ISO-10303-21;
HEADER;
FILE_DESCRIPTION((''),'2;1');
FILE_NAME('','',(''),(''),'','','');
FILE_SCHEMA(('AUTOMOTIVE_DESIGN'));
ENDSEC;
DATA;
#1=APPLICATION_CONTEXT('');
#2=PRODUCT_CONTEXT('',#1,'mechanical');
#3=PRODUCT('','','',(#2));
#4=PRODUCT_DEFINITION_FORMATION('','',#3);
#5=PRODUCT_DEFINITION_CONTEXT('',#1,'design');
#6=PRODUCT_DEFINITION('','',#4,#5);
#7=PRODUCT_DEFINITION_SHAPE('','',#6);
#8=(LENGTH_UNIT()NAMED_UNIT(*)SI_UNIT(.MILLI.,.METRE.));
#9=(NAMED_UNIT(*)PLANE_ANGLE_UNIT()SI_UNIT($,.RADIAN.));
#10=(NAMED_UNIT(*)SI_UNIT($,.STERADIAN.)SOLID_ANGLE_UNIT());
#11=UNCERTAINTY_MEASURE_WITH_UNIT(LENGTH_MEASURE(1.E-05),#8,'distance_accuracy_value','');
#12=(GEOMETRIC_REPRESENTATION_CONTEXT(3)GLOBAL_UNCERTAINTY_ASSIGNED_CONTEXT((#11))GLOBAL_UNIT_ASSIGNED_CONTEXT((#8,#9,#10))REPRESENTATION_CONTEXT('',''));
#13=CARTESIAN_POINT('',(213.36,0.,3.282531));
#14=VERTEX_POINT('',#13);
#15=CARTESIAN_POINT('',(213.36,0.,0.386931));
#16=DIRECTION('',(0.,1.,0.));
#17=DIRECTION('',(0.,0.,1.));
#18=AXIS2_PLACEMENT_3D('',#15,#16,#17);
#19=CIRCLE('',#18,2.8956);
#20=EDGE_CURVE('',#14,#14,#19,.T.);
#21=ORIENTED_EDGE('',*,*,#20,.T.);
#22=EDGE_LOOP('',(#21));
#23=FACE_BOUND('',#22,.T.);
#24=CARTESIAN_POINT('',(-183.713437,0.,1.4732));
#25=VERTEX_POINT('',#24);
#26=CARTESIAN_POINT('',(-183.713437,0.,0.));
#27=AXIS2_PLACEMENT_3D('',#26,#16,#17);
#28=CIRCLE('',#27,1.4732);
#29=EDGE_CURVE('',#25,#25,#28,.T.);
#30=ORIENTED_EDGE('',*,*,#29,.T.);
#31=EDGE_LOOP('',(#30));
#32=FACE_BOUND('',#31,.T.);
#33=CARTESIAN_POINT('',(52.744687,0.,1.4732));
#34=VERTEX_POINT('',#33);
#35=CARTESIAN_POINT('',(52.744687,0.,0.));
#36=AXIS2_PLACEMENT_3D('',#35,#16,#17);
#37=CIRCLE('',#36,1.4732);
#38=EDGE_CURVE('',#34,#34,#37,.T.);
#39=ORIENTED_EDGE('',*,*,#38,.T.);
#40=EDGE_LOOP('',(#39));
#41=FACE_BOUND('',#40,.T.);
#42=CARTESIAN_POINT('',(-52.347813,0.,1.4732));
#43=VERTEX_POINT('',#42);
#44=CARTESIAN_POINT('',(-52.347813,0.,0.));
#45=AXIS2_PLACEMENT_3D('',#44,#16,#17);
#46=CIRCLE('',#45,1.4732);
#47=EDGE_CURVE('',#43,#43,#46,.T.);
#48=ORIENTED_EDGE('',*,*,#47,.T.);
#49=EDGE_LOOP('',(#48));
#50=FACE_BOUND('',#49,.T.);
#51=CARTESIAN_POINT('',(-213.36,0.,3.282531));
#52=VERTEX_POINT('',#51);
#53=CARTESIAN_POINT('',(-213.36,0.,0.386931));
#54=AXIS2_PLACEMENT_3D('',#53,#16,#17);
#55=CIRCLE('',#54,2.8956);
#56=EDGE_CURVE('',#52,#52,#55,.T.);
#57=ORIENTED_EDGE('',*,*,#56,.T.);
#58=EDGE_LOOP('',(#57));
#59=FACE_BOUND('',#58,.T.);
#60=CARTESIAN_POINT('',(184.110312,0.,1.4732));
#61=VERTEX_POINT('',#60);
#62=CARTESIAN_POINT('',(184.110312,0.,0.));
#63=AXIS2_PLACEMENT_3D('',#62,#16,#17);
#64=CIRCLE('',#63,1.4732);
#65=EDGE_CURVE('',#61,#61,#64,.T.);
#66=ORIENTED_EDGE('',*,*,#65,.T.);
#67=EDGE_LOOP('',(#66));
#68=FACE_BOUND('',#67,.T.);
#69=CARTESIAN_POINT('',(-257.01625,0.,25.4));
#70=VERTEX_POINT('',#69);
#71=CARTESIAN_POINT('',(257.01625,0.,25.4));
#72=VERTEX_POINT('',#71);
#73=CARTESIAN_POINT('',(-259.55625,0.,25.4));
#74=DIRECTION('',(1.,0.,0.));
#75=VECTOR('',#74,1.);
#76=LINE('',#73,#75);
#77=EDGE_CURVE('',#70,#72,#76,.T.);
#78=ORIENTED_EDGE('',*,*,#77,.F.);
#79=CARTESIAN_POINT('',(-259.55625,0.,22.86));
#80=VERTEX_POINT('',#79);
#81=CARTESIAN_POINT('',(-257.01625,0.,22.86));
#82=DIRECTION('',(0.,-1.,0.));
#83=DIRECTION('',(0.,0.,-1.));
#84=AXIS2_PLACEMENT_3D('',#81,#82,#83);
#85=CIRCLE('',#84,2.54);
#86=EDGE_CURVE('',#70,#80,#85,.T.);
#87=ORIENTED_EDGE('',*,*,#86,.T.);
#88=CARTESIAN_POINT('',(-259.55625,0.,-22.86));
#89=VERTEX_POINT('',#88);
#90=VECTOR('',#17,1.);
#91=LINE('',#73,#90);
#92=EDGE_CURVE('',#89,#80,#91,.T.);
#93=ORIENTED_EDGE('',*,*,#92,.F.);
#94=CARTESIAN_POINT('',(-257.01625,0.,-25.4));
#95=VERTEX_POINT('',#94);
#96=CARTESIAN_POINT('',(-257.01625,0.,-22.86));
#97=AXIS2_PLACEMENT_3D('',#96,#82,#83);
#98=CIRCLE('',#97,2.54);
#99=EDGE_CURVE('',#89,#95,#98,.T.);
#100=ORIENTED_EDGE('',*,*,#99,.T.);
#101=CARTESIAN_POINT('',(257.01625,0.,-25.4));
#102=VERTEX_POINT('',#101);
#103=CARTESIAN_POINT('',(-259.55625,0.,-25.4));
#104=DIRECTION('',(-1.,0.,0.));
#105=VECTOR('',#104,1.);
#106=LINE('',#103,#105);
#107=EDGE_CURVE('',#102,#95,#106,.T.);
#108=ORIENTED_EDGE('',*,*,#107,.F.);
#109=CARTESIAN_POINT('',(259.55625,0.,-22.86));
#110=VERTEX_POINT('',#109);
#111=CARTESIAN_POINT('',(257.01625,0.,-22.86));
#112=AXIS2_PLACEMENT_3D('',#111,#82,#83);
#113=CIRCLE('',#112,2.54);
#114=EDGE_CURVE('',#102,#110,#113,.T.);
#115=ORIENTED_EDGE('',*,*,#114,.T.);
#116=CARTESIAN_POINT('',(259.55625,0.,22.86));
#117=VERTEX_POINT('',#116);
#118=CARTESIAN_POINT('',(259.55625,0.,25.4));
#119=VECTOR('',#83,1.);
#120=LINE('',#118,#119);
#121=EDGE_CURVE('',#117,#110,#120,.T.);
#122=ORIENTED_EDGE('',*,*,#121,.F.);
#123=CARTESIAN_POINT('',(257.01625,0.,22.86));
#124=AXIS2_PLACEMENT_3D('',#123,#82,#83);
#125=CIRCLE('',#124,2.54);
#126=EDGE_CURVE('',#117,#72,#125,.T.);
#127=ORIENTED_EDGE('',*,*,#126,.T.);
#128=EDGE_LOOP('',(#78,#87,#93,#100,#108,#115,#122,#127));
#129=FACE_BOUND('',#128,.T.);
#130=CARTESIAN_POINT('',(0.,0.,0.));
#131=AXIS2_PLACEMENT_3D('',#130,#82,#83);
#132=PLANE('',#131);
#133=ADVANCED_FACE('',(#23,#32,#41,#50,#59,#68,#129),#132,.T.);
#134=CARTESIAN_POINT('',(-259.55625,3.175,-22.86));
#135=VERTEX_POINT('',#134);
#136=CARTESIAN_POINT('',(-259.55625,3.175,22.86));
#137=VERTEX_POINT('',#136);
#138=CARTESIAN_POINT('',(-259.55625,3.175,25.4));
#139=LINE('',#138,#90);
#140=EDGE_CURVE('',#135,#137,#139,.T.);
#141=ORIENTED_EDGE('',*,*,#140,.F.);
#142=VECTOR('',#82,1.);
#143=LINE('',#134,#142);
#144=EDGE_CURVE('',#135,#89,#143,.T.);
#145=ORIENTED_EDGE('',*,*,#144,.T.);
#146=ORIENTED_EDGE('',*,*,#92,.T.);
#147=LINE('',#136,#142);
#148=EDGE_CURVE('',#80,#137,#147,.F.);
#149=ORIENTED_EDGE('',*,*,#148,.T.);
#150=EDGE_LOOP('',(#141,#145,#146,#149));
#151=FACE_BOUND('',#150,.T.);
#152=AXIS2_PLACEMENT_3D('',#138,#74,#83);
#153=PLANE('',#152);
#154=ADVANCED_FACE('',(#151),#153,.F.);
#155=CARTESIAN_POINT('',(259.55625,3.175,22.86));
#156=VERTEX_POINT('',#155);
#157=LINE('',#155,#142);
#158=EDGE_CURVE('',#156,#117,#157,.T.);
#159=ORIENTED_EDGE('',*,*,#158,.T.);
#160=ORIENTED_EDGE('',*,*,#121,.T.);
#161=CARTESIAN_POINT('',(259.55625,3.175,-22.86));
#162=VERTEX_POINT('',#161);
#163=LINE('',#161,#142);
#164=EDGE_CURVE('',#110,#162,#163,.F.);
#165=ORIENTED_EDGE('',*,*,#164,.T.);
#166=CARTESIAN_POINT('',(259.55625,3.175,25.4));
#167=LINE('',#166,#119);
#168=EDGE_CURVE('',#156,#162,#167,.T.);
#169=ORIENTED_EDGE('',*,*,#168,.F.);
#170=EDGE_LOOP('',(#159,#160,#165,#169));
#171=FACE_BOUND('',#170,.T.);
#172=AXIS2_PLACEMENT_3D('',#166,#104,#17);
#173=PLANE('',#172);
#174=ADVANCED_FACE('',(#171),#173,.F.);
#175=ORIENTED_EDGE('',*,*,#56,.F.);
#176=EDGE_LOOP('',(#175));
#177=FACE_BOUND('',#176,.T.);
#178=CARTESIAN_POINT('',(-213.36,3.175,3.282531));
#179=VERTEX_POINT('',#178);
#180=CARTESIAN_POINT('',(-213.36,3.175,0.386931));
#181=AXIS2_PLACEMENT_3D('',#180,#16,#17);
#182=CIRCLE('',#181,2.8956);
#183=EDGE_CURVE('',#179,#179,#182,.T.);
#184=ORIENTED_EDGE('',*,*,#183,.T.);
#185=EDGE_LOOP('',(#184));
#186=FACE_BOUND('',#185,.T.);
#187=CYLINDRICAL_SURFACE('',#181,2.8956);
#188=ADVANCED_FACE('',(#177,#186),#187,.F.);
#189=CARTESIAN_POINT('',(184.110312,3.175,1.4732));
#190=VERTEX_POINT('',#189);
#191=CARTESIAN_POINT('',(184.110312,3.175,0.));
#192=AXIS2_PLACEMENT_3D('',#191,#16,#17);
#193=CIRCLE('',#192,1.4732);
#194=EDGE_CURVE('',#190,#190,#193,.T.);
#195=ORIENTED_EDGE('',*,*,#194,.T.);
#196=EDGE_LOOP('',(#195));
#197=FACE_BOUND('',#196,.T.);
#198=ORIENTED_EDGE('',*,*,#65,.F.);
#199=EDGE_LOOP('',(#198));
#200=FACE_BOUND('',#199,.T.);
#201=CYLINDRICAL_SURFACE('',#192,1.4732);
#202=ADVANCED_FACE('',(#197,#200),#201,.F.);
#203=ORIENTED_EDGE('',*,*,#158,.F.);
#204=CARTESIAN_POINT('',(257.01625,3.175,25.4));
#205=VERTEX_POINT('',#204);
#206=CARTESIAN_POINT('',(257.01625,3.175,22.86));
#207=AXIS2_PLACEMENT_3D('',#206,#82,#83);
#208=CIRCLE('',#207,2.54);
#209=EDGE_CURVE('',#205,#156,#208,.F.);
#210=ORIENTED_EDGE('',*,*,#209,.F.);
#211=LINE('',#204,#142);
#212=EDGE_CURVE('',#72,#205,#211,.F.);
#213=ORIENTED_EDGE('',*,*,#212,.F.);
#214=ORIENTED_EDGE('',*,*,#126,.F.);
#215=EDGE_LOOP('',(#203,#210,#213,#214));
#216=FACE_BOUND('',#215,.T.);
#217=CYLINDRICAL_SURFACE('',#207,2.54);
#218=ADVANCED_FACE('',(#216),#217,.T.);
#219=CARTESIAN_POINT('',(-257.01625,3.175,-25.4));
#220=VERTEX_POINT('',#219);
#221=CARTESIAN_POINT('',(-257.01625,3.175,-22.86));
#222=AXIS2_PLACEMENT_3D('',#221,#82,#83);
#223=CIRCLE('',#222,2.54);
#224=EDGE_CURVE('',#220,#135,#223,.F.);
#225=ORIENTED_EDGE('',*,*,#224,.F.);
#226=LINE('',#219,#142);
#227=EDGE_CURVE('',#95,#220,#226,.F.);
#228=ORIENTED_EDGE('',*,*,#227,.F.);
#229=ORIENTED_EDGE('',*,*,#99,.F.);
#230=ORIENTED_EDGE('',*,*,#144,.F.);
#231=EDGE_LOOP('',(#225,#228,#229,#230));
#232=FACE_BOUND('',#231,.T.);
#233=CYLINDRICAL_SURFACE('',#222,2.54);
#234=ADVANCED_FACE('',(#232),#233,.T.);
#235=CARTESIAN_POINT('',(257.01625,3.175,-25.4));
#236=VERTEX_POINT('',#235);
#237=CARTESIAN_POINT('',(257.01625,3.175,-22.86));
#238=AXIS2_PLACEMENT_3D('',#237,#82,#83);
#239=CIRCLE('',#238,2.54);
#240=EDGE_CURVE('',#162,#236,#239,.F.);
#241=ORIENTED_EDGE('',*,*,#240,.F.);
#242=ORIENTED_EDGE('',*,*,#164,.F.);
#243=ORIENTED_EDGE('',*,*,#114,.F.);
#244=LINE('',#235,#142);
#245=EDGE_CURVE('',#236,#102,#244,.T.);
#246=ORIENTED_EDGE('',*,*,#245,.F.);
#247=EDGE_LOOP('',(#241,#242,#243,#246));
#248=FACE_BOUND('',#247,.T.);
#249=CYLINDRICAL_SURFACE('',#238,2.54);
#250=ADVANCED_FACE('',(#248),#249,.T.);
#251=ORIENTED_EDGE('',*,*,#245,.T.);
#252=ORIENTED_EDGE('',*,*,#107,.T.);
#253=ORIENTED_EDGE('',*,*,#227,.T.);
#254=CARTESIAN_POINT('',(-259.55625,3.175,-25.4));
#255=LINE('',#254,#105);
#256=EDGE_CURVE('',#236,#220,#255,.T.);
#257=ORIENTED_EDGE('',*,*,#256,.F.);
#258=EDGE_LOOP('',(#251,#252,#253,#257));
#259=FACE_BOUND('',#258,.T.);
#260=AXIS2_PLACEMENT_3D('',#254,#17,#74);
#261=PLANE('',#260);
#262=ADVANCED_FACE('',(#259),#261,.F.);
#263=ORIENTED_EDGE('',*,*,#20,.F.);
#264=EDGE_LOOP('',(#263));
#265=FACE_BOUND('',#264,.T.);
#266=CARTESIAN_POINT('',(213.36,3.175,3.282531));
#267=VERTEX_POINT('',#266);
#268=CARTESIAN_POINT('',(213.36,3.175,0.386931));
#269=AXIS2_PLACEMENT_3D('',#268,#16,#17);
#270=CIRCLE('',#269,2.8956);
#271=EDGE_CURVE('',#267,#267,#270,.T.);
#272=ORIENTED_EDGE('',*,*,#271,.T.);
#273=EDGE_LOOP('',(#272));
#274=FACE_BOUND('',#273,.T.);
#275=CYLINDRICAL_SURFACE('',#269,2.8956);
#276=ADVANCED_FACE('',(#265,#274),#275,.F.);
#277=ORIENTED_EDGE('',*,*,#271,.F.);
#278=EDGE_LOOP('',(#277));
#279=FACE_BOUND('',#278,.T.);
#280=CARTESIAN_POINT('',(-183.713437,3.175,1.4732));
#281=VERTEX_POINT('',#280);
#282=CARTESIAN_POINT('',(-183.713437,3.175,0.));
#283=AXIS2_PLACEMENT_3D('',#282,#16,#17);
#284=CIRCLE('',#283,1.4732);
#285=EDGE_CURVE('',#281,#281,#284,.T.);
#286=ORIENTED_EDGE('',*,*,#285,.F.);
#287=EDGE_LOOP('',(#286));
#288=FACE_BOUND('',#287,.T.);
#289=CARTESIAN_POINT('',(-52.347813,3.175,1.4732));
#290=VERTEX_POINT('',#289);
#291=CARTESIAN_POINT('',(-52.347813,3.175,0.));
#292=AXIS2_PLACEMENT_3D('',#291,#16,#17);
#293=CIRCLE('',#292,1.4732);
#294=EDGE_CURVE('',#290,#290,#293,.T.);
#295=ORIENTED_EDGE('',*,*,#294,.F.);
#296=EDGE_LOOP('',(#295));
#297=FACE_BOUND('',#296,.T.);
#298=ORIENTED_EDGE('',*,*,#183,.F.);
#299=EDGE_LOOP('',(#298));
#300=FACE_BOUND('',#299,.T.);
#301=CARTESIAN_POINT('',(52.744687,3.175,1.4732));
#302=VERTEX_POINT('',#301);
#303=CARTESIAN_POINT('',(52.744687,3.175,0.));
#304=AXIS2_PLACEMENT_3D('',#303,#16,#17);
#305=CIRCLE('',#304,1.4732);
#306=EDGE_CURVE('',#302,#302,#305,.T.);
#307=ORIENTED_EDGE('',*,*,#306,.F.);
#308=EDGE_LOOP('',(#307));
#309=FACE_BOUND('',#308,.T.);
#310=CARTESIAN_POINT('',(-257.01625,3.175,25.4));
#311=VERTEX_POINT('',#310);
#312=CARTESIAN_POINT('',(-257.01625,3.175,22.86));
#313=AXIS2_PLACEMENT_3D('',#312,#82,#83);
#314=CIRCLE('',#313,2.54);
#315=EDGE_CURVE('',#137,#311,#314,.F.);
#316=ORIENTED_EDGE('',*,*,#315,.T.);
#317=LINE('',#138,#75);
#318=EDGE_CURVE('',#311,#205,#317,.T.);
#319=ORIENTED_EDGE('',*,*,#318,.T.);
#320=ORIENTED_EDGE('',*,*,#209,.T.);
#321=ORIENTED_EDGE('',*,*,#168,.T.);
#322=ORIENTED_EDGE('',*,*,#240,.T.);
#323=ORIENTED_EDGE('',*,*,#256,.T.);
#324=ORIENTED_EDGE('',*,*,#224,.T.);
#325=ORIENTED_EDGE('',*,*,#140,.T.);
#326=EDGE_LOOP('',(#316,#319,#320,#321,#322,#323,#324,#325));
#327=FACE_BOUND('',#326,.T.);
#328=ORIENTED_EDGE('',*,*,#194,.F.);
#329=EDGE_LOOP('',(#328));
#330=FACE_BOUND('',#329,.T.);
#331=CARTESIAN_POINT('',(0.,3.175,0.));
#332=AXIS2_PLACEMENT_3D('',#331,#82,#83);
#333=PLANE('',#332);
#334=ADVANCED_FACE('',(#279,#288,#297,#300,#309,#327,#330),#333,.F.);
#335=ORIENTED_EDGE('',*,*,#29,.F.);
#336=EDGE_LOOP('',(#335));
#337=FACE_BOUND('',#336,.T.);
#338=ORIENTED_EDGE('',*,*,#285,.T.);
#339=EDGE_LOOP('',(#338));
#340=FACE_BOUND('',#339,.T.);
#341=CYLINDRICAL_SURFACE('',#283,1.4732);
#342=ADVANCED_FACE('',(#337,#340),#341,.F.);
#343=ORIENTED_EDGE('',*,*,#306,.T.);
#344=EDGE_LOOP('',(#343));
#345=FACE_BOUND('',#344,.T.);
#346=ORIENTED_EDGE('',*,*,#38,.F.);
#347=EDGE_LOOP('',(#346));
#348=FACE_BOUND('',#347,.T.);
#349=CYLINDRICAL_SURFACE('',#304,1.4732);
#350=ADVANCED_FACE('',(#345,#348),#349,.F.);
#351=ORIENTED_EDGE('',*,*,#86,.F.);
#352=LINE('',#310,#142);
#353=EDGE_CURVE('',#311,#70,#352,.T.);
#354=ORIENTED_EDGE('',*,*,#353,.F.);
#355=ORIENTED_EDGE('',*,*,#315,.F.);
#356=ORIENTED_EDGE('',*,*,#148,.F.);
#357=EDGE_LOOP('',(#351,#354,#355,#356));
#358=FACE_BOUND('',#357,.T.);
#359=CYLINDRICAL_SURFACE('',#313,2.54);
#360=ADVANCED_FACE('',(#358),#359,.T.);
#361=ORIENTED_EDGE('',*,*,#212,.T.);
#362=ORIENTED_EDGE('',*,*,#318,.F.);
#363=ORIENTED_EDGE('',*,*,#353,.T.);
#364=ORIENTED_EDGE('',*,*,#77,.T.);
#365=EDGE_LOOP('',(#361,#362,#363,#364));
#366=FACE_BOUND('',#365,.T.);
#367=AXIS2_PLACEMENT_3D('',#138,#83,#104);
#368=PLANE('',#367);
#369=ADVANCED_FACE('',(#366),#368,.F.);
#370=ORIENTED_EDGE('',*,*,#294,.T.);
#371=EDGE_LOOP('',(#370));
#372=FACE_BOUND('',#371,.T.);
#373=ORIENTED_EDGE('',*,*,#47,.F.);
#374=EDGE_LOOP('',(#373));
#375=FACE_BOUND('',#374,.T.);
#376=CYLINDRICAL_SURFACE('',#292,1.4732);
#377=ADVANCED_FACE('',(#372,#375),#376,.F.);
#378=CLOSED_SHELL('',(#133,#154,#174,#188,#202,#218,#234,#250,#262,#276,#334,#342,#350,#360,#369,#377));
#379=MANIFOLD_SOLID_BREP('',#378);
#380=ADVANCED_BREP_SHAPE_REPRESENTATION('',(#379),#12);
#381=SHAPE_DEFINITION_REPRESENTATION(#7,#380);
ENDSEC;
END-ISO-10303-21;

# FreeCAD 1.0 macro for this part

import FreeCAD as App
import Part
import Sketcher
from FreeCAD import Vector
Q = App.Units.Quantity


def edges_at(feature, points):
    """Names of the edges that pass closest to the given points."""
    edges = feature.Shape.Edges
    near = lambda p: min(range(len(edges)), key=lambda i: edges[i].distToShape(Part.Vertex(*p))[0])
    return sorted({f"Edge{near(p) + 1}" for p in points})

doc = App.newDocument("Part")
params = doc.addObject("Spreadsheet::Sheet", "Params")
for row, (alias, value) in enumerate([
    ("sketch1_height", "2 in"),
    ("sketch1_width", "20.4375 in"),
    ("pad1_length", "0.125 in"),
    ("fillet_radius", "0.1 in"),
    ("sketch2_diameter", "0.116 in"),
    ("hole_diameter", "0.116 in"),
    ("sketch3_diameter", "0.228 in"),
    ("hole2_diameter", "0.228 in"),
], start=1):
    params.set(f"A{row}", alias)
    params.set(f"B{row}", "=" + value)
    params.setAlias(f"B{row}", alias)

body = doc.addObject("PartDesign::Body", "Body")

# Sketch on XZ plane
sketch1 = doc.addObject("Sketcher::SketchObject", "Sketch")
body.addObject(sketch1)
sketch1.AttachmentSupport = (doc.XZ_Plane, [""])
sketch1.MapMode = "FlatFace"
sketch1.addGeometry([
    Part.LineSegment(Vector(-260, -25, 0), Vector(-260, 25, 0)),
    Part.LineSegment(Vector(-260, 25, 0), Vector(260, 25, 0)),
    Part.LineSegment(Vector(260, 25, 0), Vector(260, -25, 0)),
    Part.LineSegment(Vector(260, -25, 0), Vector(-260, -25, 0)),
], False)
sketch1.addConstraint([
    Sketcher.Constraint("Coincident", 0, 2, 1, 1),
    Sketcher.Constraint("Coincident", 1, 2, 2, 1),
    Sketcher.Constraint("Coincident", 2, 2, 3, 1),
    Sketcher.Constraint("Coincident", 3, 2, 0, 1),
    Sketcher.Constraint("Vertical", 0),
    Sketcher.Constraint("Horizontal", 1),
    Sketcher.Constraint("Vertical", 2),
    Sketcher.Constraint("Horizontal", 3),
    Sketcher.Constraint("Symmetric", 0, 2, 2, 2, -1, 1),
    Sketcher.Constraint("DistanceY", 0, 1, 0, 2, Q("2 in")),
    Sketcher.Constraint("DistanceX", 1, 1, 1, 2, Q("20.4375 in")),
])
sketch1.setExpression("Constraints[9]", "Params.sketch1_height")
sketch1.setExpression("Constraints[10]", "Params.sketch1_width")
pad1 = doc.addObject("PartDesign::Pad", "Pad")
body.addObject(pad1)
pad1.Profile = sketch1
pad1.setExpression("Length", "Params.pad1_length")
pad1.Reversed = True
doc.recompute()

fillet = doc.addObject("PartDesign::Fillet", "Fillet")
body.addObject(fillet)
fillet.Base = (pad1, edges_at(pad1, [
    (259.556, 1.587, 25.4),
    (-259.556, 1.587, 25.4),
    (-259.556, 1.587, -25.4),
    (259.556, 1.587, -25.4),
]))
fillet.setExpression("Radius", "Params.fillet_radius")

# Sketch on XZ plane
sketch2 = doc.addObject("Sketcher::SketchObject", "Sketch001")
body.addObject(sketch2)
sketch2.AttachmentSupport = (doc.XZ_Plane, [""])
sketch2.MapMode = "FlatFace"
sketch2.AttachmentOffset = App.Placement(Vector(0, 0, -0.125 * 25.4), App.Rotation())
sketch2.addGeometry([
    Part.Circle(Vector(184.1, 0, 0), Vector(0, 0, 1), 1.5),
    Part.Circle(Vector(52.7, 0, 0), Vector(0, 0, 1), 1.5),
    Part.Circle(Vector(-52.3, 0, 0), Vector(0, 0, 1), 1.5),
    Part.Circle(Vector(-183.7, 0, 0), Vector(0, 0, 1), 1.5),
], False)
sketch2.addConstraint([
    Sketcher.Constraint("Equal", 0, 1),
    Sketcher.Constraint("Equal", 1, 2),
    Sketcher.Constraint("Equal", 2, 3),
    Sketcher.Constraint("PointOnObject", 0, 3, -1),
    Sketcher.Constraint("PointOnObject", 1, 3, -1),
    Sketcher.Constraint("PointOnObject", 2, 3, -1),
    Sketcher.Constraint("PointOnObject", 3, 3, -1),
    Sketcher.Constraint("Diameter", 0, Q("0.116 in")),
    Sketcher.Constraint("DistanceX", 1, 3, 0, 3, Q("5.171875 in")),
    Sketcher.Constraint("DistanceX", 3, 3, 2, 3, Q("5.171875 in")),
    Sketcher.Constraint("DistanceX", 2, 3, 1, 3, Q("4.1375 in")),
    Sketcher.Constraint("DistanceX", -1, 1, 0, 3, Q("184.110312 mm")),
])
sketch2.setExpression("Constraints[7]", "Params.sketch2_diameter")
doc.recompute()
hole = doc.addObject("PartDesign::Hole", "Hole")
body.addObject(hole)
hole.Profile = sketch2
hole.ThreadType = "None"
hole.setExpression("Diameter", "Params.hole_diameter")
hole.DepthType = "ThroughAll"
hole.Reversed = True

# Sketch on XZ plane
sketch3 = doc.addObject("Sketcher::SketchObject", "Sketch002")
body.addObject(sketch3)
sketch3.AttachmentSupport = (doc.XZ_Plane, [""])
sketch3.MapMode = "FlatFace"
sketch3.AttachmentOffset = App.Placement(Vector(0, 0, -0.125 * 25.4), App.Rotation())
sketch3.addGeometry([
    Part.Circle(Vector(213.4, 0.4, 0), Vector(0, 0, 1), 2.9),
    Part.Circle(Vector(-213.4, 0.4, 0), Vector(0, 0, 1), 2.9),
], False)
sketch3.addConstraint([
    Sketcher.Constraint("Equal", 0, 1),
    Sketcher.Constraint("Symmetric", 0, 3, 1, 3, -2),
    Sketcher.Constraint("Diameter", 0, Q("0.228 in")),
    Sketcher.Constraint("DistanceX", -1, 1, 0, 3, Q("8.4 in")),
    Sketcher.Constraint("DistanceY", -1, 1, 0, 3, Q("0.386931 mm")),
])
sketch3.setExpression("Constraints[2]", "Params.sketch3_diameter")
doc.recompute()
hole2 = doc.addObject("PartDesign::Hole", "Hole001")
body.addObject(hole2)
hole2.Profile = sketch3
hole2.ThreadType = "None"
hole2.setExpression("Diameter", "Params.hole2_diameter")
hole2.DepthType = "ThroughAll"
hole2.Reversed = True

doc.recompute()
